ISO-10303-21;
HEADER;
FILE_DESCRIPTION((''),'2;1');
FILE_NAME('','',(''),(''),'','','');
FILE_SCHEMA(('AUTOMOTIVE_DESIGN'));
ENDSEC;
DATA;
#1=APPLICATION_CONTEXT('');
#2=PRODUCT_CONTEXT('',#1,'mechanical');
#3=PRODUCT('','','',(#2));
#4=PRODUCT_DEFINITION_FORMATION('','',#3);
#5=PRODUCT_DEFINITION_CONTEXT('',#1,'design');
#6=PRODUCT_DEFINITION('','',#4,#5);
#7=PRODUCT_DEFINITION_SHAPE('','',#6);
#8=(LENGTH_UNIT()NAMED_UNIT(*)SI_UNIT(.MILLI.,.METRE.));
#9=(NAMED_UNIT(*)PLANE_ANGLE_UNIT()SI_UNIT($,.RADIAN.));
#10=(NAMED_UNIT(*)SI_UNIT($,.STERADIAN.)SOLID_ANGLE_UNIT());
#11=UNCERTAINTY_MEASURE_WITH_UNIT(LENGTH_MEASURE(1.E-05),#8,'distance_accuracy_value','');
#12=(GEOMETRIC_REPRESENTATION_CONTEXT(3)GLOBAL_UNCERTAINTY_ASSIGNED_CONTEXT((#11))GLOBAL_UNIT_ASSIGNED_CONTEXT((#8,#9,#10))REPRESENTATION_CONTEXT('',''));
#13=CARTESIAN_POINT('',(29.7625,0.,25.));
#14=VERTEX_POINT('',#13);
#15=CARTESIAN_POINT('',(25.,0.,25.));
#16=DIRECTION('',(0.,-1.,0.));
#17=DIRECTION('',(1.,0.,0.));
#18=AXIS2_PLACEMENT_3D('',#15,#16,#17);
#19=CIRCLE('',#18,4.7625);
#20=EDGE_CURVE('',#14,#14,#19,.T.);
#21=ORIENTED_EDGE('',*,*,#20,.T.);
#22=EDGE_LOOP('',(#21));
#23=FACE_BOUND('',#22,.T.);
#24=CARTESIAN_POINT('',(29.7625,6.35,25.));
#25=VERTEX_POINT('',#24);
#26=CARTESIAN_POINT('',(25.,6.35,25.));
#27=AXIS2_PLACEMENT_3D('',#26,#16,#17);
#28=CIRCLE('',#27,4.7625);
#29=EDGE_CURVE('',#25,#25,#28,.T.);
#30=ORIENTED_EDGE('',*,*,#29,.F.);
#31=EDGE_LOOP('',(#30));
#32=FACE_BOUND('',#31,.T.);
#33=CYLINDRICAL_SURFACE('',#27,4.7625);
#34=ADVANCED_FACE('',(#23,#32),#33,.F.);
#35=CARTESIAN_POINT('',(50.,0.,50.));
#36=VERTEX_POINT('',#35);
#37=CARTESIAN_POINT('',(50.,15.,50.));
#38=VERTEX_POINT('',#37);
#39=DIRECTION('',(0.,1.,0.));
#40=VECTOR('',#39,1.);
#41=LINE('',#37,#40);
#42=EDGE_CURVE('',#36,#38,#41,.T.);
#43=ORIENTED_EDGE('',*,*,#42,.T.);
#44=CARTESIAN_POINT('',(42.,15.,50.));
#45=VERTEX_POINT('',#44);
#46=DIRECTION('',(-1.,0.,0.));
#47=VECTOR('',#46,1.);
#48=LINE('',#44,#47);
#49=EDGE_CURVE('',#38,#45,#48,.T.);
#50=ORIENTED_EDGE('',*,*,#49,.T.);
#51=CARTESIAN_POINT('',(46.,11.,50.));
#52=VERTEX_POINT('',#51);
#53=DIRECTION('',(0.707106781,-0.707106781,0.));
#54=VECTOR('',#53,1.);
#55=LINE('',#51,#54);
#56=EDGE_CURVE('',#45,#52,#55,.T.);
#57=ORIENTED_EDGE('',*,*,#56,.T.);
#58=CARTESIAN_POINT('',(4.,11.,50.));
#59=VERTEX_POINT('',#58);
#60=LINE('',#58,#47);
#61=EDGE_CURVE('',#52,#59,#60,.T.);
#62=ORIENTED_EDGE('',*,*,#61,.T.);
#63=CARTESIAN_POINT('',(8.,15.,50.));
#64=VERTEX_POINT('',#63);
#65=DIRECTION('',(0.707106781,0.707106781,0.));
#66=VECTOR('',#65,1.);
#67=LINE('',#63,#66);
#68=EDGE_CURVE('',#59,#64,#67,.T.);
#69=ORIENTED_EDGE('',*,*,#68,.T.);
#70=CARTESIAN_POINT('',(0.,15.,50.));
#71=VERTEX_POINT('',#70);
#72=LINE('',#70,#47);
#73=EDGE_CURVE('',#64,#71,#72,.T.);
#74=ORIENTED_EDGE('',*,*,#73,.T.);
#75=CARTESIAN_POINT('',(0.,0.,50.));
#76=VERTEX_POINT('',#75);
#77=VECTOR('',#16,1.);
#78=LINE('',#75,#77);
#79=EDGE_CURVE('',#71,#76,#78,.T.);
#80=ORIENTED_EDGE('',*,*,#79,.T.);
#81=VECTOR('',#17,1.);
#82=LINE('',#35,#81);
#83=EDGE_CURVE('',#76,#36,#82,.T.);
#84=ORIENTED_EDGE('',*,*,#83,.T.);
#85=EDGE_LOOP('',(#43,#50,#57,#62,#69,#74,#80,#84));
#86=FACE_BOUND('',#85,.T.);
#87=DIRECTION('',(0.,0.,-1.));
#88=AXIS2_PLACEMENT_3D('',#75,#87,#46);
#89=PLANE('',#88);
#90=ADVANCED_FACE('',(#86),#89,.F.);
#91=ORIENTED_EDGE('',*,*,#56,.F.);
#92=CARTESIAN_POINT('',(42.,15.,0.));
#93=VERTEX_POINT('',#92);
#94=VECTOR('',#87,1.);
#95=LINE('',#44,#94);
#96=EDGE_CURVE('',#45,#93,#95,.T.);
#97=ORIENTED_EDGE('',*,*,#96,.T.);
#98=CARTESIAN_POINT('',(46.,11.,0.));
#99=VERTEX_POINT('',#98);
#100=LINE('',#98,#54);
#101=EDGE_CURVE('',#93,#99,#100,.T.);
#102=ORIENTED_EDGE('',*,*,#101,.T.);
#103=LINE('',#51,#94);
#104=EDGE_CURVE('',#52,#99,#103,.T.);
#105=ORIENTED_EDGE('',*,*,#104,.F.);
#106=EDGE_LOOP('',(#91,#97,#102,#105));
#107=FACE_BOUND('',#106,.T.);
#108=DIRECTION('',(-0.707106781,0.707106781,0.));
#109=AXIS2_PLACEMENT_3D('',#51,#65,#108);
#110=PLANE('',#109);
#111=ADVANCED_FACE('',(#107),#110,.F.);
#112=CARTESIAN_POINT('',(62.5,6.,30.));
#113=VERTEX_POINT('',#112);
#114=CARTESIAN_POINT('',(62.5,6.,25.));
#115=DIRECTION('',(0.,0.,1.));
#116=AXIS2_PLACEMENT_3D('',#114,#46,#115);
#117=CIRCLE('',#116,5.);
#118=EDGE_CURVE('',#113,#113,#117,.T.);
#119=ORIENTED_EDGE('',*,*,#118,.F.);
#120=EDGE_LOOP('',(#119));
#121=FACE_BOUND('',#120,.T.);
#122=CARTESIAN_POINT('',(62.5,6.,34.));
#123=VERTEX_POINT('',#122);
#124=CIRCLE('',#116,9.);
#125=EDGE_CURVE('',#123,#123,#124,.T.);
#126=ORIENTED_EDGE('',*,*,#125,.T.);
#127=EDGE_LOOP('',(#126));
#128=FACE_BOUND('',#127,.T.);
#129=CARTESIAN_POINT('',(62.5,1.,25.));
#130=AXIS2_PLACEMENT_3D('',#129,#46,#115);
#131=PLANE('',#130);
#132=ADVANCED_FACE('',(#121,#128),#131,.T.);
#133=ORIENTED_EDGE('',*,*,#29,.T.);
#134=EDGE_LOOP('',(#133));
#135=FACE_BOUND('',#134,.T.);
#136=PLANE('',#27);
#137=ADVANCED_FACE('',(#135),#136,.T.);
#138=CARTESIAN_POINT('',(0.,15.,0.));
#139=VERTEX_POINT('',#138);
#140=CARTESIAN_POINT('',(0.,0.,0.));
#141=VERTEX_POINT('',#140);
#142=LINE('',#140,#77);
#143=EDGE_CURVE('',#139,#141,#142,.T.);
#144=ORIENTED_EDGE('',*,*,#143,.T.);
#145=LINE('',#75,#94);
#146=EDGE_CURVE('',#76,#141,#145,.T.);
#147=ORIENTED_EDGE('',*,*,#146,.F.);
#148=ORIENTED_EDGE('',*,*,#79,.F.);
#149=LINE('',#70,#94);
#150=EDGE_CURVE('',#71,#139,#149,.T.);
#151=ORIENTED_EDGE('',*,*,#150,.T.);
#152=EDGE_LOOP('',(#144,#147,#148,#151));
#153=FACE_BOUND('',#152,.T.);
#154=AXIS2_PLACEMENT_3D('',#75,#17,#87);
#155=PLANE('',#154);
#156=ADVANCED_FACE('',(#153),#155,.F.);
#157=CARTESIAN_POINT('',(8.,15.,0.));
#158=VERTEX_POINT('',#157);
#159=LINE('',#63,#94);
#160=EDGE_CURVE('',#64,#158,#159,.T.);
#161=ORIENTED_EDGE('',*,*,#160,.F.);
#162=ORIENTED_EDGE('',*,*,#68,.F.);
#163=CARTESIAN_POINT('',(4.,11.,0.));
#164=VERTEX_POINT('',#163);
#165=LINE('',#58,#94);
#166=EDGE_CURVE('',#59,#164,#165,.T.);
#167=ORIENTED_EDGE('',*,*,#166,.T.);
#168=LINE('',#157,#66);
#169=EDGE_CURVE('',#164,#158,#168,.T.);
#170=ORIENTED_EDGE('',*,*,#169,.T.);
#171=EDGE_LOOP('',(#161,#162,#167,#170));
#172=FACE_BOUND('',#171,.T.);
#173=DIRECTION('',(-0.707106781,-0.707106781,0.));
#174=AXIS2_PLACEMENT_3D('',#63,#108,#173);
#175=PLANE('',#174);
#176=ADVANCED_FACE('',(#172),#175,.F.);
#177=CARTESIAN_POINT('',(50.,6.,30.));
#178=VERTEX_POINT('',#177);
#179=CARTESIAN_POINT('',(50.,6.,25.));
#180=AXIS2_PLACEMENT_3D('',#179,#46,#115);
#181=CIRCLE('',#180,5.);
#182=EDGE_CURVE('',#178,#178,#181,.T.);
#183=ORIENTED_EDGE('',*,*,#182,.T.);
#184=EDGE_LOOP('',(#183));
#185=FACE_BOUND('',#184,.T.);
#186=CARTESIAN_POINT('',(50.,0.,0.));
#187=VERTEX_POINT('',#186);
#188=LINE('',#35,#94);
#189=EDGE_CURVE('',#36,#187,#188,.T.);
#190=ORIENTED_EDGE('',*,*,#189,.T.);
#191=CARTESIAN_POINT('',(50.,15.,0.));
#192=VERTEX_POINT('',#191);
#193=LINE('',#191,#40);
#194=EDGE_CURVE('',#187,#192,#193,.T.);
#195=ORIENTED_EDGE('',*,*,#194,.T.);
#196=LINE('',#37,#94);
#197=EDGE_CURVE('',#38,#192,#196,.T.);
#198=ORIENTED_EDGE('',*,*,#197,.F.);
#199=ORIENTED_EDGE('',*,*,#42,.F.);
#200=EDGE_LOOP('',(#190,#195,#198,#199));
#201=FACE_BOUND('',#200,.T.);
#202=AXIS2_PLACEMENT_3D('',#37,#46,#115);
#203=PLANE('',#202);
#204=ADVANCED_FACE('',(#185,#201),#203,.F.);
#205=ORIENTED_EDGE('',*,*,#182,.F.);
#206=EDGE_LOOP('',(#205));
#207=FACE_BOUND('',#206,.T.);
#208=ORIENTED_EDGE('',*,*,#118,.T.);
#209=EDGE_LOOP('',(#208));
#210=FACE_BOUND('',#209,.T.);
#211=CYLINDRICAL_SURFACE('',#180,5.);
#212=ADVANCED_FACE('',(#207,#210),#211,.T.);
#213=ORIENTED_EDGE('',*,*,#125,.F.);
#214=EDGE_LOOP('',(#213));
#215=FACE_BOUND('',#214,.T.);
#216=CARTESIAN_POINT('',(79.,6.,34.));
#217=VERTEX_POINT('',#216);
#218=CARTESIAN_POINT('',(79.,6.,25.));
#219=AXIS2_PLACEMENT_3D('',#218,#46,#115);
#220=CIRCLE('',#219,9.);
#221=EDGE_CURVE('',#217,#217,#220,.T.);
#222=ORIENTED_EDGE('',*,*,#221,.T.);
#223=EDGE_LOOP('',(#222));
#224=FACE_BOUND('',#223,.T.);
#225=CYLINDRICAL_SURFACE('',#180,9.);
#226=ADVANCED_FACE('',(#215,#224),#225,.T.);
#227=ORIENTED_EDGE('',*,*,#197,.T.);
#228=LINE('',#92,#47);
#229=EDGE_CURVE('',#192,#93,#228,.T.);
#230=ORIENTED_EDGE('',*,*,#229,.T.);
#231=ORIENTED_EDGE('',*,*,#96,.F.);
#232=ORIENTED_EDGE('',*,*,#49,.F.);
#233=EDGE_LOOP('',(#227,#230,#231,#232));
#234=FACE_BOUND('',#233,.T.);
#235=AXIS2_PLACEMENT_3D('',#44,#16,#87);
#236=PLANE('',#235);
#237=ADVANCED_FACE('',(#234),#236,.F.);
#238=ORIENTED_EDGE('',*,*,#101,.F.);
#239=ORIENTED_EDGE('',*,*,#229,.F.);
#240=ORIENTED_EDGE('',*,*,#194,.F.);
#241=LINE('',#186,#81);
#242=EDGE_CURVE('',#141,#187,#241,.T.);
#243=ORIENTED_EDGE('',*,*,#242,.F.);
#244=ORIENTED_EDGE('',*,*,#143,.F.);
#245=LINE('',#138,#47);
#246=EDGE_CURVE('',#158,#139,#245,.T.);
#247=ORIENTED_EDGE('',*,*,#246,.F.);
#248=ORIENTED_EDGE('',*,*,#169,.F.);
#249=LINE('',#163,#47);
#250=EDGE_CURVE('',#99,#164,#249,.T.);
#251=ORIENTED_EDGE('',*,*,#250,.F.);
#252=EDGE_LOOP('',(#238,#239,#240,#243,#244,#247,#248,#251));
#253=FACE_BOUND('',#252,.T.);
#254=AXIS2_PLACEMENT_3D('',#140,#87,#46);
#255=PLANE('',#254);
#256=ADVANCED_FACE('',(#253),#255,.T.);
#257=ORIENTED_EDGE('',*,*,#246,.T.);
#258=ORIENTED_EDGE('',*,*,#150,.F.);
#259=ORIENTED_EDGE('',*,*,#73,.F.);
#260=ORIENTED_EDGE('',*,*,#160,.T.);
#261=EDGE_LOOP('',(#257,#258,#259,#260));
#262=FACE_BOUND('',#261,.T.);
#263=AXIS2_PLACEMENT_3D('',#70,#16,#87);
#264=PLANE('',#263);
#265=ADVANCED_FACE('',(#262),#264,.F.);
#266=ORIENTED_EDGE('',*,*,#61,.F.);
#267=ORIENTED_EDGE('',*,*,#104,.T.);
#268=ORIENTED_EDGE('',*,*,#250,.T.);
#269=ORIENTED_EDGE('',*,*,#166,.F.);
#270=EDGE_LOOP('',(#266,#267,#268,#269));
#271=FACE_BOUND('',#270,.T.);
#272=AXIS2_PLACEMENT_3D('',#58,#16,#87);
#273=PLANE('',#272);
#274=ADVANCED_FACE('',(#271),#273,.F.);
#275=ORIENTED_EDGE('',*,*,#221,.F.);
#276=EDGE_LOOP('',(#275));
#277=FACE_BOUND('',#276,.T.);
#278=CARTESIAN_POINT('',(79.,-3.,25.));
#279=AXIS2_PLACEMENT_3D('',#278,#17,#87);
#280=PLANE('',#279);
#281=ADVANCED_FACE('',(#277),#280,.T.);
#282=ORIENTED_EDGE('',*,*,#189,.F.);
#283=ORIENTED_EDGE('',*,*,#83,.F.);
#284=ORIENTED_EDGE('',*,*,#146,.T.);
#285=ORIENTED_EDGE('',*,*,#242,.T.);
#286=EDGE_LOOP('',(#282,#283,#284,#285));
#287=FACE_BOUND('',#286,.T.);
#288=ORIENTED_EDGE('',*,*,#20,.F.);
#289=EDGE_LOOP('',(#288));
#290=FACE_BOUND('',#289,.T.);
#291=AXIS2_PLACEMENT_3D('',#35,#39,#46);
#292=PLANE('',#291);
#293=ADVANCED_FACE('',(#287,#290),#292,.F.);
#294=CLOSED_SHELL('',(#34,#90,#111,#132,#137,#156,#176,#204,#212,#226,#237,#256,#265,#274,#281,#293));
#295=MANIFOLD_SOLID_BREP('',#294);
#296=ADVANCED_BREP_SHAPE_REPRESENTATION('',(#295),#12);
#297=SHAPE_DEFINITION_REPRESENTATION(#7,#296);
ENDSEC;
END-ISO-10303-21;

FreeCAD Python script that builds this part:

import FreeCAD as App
import Part
import Sketcher
from FreeCAD import Vector
Q = App.Units.Quantity


def add_polygon(sketch, points):
    """Adds a closed chain of lines whose ends are joined by coincident constraints."""
    first, n = sketch.GeometryCount, len(points)
    for a, b in zip(points, points[1:] + points[:1]):
        sketch.addGeometry(Part.LineSegment(App.Vector(*a, 0), App.Vector(*b, 0)), False)
    for i in range(n):
        sketch.addConstraint(Sketcher.Constraint("Coincident", first + i, 2, first + (i + 1) % n, 1))

doc = App.newDocument("Part")
body = doc.addObject("PartDesign::Body", "Body")

# Sketch on XY plane
sketch1 = doc.addObject("Sketcher::SketchObject", "Sketch")
body.addObject(sketch1)
sketch1.AttachmentSupport = (doc.XY_Plane, [""])
sketch1.MapMode = "FlatFace"
add_polygon(sketch1, [(0, 15), (0, 0), (50, 0), (50, 15), (42, 15), (46, 11), (4, 11), (8, 15)])  # lines 0-7
sketch1.addConstraint(Sketcher.Constraint("Vertical", 0))
sketch1.addConstraint(Sketcher.Constraint("Horizontal", 1))
sketch1.addConstraint(Sketcher.Constraint("Vertical", 2))
sketch1.addConstraint(Sketcher.Constraint("Horizontal", 3))
sketch1.addConstraint(Sketcher.Constraint("Horizontal", 5))
sketch1.addConstraint(Sketcher.Constraint("Horizontal", 7))
sketch1.addConstraint(Sketcher.Constraint("Coincident", 0, 2, -1, 1))
sketch1.addConstraint(Sketcher.Constraint("Perpendicular", 4, 6))
sketch1.addConstraint(Sketcher.Constraint("Horizontal", 3, 2, 6, 2))
sketch1.addConstraint(Sketcher.Constraint("Equal", 3, 7))
sketch1.addConstraint(Sketcher.Constraint("Equal", 4, 6))
sketch1.addConstraint(Sketcher.Constraint("DistanceX", 1, 1, 1, 2, Q("50 mm")))
sketch1.addConstraint(Sketcher.Constraint("DistanceX", 3, 2, 3, 1, Q("8 mm")))
sketch1.addConstraint(Sketcher.Constraint("DistanceX", 5, 2, 5, 1, Q("42 mm")))
sketch1.addConstraint(Sketcher.Constraint("DistanceY", 0, 2, 0, 1, Q("15 mm")))
pad1 = doc.addObject("PartDesign::Pad", "Pad")
body.addObject(pad1)
pad1.Profile = sketch1
pad1.Length = 50

# Sketch on XY plane
sketch2 = doc.addObject("Sketcher::SketchObject", "Sketch001")
body.addObject(sketch2)
sketch2.AttachmentSupport = (doc.XY_Plane, [""])
sketch2.MapMode = "FlatFace"
sketch2.AttachmentOffset = App.Placement(Vector(0, 0, 25), App.Rotation())
add_polygon(sketch2, [(50, 6), (50, 1), (62.5, 1), (62.5, -3), (79, -3), (79, 6)])  # lines 0-5
sketch2.addGeometry(Part.LineSegment(Vector(50, 6, 0), Vector(79, 6, 0)), True)  # axis
sketch2.addConstraint(Sketcher.Constraint("Vertical", 0))
sketch2.addConstraint(Sketcher.Constraint("Horizontal", 1))
sketch2.addConstraint(Sketcher.Constraint("Vertical", 2))
sketch2.addConstraint(Sketcher.Constraint("Horizontal", 3))
sketch2.addConstraint(Sketcher.Constraint("Vertical", 4))
sketch2.addConstraint(Sketcher.Constraint("Horizontal", 5))
sketch2.addConstraint(Sketcher.Constraint("Horizontal", 6))
sketch2.addConstraint(Sketcher.Constraint("Coincident", 6, 1, 5, 2))
sketch2.addConstraint(Sketcher.Constraint("Vertical", 3, 2, 6, 2))
sketch2.addConstraint(Sketcher.Constraint("DistanceX", 5, 2, 5, 1, Q("29 mm")))
sketch2.addConstraint(Sketcher.Constraint("DistanceY", 0, 2, 0, 1, Q("5 mm")))
sketch2.addConstraint(Sketcher.Constraint("DistanceY", 2, 2, 2, 1, Q("4 mm")))
sketch2.addConstraint(Sketcher.Constraint("DistanceX", 1, 1, 1, 2, Q("12.5 mm")))
sketch2.addConstraint(Sketcher.Constraint("DistanceX", -1, 1, 0, 2, Q("50 mm")))
sketch2.addConstraint(Sketcher.Constraint("DistanceY", -1, 1, 0, 2, Q("1 mm")))
revolution = doc.addObject("PartDesign::Revolution", "Revolution")
body.addObject(revolution)
revolution.Profile = sketch2
revolution.ReferenceAxis = (sketch2, ["Axis0"])
revolution.Angle = 360

# Sketch on XZ plane
sketch3 = doc.addObject("Sketcher::SketchObject", "Sketch002")
body.addObject(sketch3)
sketch3.AttachmentSupport = (doc.XZ_Plane, [""])
sketch3.MapMode = "FlatFace"
sketch3.addGeometry(Part.Circle(Vector(25, 25, 0), Vector(0, 0, 1), 4.7625), False)
sketch3.addConstraint(Sketcher.Constraint("Diameter", 0, Q("9.525 mm")))
sketch3.addConstraint(Sketcher.Constraint("DistanceX", -1, 1, 0, 3, Q("25 mm")))
sketch3.addConstraint(Sketcher.Constraint("DistanceY", -1, 1, 0, 3, Q("25 mm")))
pocket1 = doc.addObject("PartDesign::Pocket", "Pocket")
body.addObject(pocket1)
pocket1.Profile = sketch3
pocket1.Length = 6.35

doc.recompute()
